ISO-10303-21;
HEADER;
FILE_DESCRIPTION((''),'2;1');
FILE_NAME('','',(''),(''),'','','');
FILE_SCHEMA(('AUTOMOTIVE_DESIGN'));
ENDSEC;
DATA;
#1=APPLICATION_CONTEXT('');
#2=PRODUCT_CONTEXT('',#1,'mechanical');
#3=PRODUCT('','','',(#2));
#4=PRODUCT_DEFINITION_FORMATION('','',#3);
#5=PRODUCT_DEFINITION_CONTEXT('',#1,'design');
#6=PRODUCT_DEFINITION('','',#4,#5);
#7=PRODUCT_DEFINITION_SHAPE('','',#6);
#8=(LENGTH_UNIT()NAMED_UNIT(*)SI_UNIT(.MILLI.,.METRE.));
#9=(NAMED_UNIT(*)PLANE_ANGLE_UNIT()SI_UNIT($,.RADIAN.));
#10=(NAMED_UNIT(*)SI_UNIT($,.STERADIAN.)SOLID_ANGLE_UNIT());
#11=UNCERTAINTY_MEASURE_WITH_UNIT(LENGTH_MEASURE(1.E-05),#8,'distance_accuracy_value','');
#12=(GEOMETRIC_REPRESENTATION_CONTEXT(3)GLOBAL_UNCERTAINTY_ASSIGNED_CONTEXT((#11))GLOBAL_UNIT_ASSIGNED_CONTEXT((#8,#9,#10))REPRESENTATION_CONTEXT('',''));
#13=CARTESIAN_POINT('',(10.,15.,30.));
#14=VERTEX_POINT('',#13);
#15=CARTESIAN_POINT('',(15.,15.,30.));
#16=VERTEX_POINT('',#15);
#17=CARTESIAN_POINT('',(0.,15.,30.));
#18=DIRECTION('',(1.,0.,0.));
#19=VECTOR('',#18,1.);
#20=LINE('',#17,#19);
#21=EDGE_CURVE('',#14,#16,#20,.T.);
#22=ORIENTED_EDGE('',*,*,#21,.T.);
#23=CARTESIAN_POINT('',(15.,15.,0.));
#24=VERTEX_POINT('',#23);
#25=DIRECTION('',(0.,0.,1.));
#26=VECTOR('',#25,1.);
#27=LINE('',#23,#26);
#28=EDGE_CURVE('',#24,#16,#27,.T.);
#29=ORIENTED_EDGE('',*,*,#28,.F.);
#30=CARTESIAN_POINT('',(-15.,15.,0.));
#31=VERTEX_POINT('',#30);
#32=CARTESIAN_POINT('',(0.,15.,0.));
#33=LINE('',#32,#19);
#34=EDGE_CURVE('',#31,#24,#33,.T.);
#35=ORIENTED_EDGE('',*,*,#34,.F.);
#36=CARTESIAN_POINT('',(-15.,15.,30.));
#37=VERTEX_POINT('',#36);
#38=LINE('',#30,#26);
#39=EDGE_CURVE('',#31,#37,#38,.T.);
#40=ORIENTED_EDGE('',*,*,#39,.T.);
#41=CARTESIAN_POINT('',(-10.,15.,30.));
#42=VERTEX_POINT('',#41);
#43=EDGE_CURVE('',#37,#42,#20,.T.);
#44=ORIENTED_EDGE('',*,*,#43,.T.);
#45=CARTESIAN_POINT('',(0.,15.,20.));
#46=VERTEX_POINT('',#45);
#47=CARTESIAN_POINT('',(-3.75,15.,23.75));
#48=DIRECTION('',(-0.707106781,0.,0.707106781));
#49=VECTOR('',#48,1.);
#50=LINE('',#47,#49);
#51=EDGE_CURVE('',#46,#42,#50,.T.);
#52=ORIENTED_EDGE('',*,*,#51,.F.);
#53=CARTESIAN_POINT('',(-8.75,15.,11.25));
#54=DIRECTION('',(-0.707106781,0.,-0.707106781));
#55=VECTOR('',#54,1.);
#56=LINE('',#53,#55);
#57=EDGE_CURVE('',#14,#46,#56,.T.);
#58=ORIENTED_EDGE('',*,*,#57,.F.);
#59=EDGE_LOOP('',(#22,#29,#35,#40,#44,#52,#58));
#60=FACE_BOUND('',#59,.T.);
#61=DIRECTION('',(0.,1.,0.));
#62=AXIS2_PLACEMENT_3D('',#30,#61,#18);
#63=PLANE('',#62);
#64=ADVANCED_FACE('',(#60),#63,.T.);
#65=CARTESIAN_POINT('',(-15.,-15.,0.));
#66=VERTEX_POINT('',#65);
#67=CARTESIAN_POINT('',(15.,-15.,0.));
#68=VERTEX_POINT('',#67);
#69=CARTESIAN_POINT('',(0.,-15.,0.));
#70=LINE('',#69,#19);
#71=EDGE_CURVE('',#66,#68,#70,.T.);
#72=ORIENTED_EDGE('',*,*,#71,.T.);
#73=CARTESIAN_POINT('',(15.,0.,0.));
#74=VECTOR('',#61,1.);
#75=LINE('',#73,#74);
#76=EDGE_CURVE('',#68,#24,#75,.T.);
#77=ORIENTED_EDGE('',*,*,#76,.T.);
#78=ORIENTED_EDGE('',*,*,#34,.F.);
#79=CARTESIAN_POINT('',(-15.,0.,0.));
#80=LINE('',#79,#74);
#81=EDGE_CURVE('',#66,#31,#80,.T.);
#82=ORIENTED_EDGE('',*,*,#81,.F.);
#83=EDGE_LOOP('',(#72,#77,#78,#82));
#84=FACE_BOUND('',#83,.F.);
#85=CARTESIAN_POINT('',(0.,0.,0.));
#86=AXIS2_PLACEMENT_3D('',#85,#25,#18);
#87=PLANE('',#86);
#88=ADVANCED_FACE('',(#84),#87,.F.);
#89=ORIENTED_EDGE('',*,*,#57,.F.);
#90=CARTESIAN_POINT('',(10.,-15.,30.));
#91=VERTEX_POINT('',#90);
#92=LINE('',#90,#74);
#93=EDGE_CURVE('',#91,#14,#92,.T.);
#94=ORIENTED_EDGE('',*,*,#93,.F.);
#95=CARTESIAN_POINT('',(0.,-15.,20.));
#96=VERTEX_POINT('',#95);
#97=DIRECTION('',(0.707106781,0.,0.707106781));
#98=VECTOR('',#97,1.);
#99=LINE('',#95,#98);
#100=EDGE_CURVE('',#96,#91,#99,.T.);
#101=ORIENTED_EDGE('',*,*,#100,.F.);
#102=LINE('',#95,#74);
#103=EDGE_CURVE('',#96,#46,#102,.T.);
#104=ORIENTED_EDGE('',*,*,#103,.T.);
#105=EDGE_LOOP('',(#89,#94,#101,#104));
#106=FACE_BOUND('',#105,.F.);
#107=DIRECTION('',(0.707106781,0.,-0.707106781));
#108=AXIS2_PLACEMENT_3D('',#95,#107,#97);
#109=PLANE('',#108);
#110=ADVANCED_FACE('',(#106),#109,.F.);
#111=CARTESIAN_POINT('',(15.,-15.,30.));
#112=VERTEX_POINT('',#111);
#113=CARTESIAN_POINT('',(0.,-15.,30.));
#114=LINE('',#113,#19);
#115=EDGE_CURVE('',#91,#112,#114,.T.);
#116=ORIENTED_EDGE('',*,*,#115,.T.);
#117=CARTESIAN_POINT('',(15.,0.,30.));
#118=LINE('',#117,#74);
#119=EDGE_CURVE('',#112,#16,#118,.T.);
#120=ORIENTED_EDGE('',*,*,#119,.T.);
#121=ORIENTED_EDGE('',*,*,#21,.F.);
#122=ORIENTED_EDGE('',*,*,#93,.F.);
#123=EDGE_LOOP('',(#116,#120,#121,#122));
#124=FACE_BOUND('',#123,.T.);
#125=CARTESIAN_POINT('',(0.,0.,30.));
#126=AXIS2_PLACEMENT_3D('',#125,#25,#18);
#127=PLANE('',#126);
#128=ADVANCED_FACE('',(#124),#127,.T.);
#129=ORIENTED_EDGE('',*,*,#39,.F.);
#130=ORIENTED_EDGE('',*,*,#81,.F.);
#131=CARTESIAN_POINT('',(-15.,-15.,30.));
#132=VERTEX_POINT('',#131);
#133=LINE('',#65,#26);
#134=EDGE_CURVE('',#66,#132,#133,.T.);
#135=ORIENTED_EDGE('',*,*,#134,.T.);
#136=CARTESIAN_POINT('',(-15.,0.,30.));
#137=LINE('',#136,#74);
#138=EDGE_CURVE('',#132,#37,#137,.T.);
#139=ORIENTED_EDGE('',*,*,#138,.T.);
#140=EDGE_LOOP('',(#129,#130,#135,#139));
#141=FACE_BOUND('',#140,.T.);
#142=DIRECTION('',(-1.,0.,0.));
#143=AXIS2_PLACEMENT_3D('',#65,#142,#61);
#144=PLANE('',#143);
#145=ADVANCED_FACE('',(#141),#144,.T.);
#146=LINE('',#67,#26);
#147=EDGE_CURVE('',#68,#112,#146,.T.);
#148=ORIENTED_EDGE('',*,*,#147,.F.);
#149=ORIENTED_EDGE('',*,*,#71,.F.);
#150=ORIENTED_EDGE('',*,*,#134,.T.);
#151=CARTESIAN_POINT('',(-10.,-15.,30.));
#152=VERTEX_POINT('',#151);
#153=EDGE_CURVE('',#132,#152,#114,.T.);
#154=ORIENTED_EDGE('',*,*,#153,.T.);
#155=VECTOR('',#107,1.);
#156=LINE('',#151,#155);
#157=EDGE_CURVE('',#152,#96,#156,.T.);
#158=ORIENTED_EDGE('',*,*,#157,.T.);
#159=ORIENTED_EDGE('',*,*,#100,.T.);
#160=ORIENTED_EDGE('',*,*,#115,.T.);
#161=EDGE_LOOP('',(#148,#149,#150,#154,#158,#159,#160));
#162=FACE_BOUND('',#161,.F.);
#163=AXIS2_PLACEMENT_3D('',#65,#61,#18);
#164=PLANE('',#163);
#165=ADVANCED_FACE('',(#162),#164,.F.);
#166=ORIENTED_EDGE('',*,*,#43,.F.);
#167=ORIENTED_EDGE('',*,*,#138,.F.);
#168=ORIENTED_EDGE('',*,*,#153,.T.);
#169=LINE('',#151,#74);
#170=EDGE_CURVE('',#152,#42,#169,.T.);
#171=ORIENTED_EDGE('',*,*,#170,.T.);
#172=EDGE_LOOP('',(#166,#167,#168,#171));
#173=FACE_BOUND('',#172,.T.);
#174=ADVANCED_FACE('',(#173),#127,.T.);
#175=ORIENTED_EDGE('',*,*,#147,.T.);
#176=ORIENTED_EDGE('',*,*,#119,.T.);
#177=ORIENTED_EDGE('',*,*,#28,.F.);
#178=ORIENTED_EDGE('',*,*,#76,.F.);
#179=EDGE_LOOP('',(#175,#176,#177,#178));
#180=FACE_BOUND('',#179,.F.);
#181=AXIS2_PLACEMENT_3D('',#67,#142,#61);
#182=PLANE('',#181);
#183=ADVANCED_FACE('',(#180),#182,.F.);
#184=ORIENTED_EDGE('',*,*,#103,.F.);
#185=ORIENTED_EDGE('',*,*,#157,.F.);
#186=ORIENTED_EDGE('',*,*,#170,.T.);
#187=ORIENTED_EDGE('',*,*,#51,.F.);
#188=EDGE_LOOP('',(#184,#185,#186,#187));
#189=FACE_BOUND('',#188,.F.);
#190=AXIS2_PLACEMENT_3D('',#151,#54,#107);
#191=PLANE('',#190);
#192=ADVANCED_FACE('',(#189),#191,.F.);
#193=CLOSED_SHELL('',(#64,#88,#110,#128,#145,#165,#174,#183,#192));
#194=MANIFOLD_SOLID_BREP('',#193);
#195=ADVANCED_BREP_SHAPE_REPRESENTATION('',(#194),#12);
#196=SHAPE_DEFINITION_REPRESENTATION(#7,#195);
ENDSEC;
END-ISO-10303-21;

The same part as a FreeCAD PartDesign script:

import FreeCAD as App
import Part
import Sketcher
from FreeCAD import Vector
Q = App.Units.Quantity


def add_polygon(sketch, points):
    """Adds a closed chain of lines whose ends are joined by coincident constraints."""
    first, n = sketch.GeometryCount, len(points)
    for a, b in zip(points, points[1:] + points[:1]):
        sketch.addGeometry(Part.LineSegment(App.Vector(*a, 0), App.Vector(*b, 0)), False)
    for i in range(n):
        sketch.addConstraint(Sketcher.Constraint("Coincident", first + i, 2, first + (i + 1) % n, 1))

doc = App.newDocument("Part")
params = doc.addObject("Spreadsheet::Sheet", "Params")
for row, (alias, value) in enumerate([
    ("sketch1_width", "30 mm"),
    ("pad1_length", "30 mm"),
    ("sketch2_width", "20 mm"),
], start=1):
    params.set(f"A{row}", alias)
    params.set(f"B{row}", "=" + value)
    params.setAlias(f"B{row}", alias)

body = doc.addObject("PartDesign::Body", "Body")

sketch1 = body.newObject("Sketcher::SketchObject", "Sketch")
sketch1.AttachmentSupport = (doc.getObject("XY_Plane"), [""])
sketch1.MapMode = "FlatFace"
add_polygon(sketch1, [(-15, 15), (-15, -15), (15, -15), (15, 15)])
sketch1.addConstraint([
    Sketcher.Constraint("Vertical", 0),
    Sketcher.Constraint("Horizontal", 1),
    Sketcher.Constraint("Vertical", 2),
    Sketcher.Constraint("Horizontal", 3),
    Sketcher.Constraint("Symmetric", 0, 2, 2, 2, -1, 1),
    Sketcher.Constraint("Equal", 3, 0),
    Sketcher.Constraint("DistanceX", 1, 1, 1, 2, Q("30 mm")),
])
sketch1.setExpression("Constraints[10]", "Params.sketch1_width")
pad1 = body.newObject("PartDesign::Pad", "Pad")
pad1.Profile = sketch1
pad1.setExpression("Length", "Params.pad1_length")

sketch2 = body.newObject("Sketcher::SketchObject", "Sketch001")
sketch2.AttachmentSupport = (doc.getObject("XZ_Plane"), [""])
sketch2.MapMode = "FlatFace"
sketch2.AttachmentOffset = App.Placement(Vector(0, 0, 15), App.Rotation())
add_polygon(sketch2, [(10, 30), (-10, 30), (0, 20)])
sketch2.addConstraint([
    Sketcher.Constraint("Horizontal", 0),
    Sketcher.Constraint("PointOnObject", 1, 2, -2),
    Sketcher.Constraint("Perpendicular", 1, 2),
    Sketcher.Constraint("Equal", 1, 2),
    Sketcher.Constraint("DistanceX", 0, 2, 0, 1, Q("20 mm")),
    Sketcher.Constraint("DistanceY", -1, 1, 0, 2, Q("30 mm")),
])
sketch2.setExpression("Constraints[7]", "Params.sketch2_width")
pocket1 = body.newObject("PartDesign::Pocket", "Pocket")
pocket1.Profile = sketch2
pocket1.Type = "ThroughAll"

doc.recompute()
